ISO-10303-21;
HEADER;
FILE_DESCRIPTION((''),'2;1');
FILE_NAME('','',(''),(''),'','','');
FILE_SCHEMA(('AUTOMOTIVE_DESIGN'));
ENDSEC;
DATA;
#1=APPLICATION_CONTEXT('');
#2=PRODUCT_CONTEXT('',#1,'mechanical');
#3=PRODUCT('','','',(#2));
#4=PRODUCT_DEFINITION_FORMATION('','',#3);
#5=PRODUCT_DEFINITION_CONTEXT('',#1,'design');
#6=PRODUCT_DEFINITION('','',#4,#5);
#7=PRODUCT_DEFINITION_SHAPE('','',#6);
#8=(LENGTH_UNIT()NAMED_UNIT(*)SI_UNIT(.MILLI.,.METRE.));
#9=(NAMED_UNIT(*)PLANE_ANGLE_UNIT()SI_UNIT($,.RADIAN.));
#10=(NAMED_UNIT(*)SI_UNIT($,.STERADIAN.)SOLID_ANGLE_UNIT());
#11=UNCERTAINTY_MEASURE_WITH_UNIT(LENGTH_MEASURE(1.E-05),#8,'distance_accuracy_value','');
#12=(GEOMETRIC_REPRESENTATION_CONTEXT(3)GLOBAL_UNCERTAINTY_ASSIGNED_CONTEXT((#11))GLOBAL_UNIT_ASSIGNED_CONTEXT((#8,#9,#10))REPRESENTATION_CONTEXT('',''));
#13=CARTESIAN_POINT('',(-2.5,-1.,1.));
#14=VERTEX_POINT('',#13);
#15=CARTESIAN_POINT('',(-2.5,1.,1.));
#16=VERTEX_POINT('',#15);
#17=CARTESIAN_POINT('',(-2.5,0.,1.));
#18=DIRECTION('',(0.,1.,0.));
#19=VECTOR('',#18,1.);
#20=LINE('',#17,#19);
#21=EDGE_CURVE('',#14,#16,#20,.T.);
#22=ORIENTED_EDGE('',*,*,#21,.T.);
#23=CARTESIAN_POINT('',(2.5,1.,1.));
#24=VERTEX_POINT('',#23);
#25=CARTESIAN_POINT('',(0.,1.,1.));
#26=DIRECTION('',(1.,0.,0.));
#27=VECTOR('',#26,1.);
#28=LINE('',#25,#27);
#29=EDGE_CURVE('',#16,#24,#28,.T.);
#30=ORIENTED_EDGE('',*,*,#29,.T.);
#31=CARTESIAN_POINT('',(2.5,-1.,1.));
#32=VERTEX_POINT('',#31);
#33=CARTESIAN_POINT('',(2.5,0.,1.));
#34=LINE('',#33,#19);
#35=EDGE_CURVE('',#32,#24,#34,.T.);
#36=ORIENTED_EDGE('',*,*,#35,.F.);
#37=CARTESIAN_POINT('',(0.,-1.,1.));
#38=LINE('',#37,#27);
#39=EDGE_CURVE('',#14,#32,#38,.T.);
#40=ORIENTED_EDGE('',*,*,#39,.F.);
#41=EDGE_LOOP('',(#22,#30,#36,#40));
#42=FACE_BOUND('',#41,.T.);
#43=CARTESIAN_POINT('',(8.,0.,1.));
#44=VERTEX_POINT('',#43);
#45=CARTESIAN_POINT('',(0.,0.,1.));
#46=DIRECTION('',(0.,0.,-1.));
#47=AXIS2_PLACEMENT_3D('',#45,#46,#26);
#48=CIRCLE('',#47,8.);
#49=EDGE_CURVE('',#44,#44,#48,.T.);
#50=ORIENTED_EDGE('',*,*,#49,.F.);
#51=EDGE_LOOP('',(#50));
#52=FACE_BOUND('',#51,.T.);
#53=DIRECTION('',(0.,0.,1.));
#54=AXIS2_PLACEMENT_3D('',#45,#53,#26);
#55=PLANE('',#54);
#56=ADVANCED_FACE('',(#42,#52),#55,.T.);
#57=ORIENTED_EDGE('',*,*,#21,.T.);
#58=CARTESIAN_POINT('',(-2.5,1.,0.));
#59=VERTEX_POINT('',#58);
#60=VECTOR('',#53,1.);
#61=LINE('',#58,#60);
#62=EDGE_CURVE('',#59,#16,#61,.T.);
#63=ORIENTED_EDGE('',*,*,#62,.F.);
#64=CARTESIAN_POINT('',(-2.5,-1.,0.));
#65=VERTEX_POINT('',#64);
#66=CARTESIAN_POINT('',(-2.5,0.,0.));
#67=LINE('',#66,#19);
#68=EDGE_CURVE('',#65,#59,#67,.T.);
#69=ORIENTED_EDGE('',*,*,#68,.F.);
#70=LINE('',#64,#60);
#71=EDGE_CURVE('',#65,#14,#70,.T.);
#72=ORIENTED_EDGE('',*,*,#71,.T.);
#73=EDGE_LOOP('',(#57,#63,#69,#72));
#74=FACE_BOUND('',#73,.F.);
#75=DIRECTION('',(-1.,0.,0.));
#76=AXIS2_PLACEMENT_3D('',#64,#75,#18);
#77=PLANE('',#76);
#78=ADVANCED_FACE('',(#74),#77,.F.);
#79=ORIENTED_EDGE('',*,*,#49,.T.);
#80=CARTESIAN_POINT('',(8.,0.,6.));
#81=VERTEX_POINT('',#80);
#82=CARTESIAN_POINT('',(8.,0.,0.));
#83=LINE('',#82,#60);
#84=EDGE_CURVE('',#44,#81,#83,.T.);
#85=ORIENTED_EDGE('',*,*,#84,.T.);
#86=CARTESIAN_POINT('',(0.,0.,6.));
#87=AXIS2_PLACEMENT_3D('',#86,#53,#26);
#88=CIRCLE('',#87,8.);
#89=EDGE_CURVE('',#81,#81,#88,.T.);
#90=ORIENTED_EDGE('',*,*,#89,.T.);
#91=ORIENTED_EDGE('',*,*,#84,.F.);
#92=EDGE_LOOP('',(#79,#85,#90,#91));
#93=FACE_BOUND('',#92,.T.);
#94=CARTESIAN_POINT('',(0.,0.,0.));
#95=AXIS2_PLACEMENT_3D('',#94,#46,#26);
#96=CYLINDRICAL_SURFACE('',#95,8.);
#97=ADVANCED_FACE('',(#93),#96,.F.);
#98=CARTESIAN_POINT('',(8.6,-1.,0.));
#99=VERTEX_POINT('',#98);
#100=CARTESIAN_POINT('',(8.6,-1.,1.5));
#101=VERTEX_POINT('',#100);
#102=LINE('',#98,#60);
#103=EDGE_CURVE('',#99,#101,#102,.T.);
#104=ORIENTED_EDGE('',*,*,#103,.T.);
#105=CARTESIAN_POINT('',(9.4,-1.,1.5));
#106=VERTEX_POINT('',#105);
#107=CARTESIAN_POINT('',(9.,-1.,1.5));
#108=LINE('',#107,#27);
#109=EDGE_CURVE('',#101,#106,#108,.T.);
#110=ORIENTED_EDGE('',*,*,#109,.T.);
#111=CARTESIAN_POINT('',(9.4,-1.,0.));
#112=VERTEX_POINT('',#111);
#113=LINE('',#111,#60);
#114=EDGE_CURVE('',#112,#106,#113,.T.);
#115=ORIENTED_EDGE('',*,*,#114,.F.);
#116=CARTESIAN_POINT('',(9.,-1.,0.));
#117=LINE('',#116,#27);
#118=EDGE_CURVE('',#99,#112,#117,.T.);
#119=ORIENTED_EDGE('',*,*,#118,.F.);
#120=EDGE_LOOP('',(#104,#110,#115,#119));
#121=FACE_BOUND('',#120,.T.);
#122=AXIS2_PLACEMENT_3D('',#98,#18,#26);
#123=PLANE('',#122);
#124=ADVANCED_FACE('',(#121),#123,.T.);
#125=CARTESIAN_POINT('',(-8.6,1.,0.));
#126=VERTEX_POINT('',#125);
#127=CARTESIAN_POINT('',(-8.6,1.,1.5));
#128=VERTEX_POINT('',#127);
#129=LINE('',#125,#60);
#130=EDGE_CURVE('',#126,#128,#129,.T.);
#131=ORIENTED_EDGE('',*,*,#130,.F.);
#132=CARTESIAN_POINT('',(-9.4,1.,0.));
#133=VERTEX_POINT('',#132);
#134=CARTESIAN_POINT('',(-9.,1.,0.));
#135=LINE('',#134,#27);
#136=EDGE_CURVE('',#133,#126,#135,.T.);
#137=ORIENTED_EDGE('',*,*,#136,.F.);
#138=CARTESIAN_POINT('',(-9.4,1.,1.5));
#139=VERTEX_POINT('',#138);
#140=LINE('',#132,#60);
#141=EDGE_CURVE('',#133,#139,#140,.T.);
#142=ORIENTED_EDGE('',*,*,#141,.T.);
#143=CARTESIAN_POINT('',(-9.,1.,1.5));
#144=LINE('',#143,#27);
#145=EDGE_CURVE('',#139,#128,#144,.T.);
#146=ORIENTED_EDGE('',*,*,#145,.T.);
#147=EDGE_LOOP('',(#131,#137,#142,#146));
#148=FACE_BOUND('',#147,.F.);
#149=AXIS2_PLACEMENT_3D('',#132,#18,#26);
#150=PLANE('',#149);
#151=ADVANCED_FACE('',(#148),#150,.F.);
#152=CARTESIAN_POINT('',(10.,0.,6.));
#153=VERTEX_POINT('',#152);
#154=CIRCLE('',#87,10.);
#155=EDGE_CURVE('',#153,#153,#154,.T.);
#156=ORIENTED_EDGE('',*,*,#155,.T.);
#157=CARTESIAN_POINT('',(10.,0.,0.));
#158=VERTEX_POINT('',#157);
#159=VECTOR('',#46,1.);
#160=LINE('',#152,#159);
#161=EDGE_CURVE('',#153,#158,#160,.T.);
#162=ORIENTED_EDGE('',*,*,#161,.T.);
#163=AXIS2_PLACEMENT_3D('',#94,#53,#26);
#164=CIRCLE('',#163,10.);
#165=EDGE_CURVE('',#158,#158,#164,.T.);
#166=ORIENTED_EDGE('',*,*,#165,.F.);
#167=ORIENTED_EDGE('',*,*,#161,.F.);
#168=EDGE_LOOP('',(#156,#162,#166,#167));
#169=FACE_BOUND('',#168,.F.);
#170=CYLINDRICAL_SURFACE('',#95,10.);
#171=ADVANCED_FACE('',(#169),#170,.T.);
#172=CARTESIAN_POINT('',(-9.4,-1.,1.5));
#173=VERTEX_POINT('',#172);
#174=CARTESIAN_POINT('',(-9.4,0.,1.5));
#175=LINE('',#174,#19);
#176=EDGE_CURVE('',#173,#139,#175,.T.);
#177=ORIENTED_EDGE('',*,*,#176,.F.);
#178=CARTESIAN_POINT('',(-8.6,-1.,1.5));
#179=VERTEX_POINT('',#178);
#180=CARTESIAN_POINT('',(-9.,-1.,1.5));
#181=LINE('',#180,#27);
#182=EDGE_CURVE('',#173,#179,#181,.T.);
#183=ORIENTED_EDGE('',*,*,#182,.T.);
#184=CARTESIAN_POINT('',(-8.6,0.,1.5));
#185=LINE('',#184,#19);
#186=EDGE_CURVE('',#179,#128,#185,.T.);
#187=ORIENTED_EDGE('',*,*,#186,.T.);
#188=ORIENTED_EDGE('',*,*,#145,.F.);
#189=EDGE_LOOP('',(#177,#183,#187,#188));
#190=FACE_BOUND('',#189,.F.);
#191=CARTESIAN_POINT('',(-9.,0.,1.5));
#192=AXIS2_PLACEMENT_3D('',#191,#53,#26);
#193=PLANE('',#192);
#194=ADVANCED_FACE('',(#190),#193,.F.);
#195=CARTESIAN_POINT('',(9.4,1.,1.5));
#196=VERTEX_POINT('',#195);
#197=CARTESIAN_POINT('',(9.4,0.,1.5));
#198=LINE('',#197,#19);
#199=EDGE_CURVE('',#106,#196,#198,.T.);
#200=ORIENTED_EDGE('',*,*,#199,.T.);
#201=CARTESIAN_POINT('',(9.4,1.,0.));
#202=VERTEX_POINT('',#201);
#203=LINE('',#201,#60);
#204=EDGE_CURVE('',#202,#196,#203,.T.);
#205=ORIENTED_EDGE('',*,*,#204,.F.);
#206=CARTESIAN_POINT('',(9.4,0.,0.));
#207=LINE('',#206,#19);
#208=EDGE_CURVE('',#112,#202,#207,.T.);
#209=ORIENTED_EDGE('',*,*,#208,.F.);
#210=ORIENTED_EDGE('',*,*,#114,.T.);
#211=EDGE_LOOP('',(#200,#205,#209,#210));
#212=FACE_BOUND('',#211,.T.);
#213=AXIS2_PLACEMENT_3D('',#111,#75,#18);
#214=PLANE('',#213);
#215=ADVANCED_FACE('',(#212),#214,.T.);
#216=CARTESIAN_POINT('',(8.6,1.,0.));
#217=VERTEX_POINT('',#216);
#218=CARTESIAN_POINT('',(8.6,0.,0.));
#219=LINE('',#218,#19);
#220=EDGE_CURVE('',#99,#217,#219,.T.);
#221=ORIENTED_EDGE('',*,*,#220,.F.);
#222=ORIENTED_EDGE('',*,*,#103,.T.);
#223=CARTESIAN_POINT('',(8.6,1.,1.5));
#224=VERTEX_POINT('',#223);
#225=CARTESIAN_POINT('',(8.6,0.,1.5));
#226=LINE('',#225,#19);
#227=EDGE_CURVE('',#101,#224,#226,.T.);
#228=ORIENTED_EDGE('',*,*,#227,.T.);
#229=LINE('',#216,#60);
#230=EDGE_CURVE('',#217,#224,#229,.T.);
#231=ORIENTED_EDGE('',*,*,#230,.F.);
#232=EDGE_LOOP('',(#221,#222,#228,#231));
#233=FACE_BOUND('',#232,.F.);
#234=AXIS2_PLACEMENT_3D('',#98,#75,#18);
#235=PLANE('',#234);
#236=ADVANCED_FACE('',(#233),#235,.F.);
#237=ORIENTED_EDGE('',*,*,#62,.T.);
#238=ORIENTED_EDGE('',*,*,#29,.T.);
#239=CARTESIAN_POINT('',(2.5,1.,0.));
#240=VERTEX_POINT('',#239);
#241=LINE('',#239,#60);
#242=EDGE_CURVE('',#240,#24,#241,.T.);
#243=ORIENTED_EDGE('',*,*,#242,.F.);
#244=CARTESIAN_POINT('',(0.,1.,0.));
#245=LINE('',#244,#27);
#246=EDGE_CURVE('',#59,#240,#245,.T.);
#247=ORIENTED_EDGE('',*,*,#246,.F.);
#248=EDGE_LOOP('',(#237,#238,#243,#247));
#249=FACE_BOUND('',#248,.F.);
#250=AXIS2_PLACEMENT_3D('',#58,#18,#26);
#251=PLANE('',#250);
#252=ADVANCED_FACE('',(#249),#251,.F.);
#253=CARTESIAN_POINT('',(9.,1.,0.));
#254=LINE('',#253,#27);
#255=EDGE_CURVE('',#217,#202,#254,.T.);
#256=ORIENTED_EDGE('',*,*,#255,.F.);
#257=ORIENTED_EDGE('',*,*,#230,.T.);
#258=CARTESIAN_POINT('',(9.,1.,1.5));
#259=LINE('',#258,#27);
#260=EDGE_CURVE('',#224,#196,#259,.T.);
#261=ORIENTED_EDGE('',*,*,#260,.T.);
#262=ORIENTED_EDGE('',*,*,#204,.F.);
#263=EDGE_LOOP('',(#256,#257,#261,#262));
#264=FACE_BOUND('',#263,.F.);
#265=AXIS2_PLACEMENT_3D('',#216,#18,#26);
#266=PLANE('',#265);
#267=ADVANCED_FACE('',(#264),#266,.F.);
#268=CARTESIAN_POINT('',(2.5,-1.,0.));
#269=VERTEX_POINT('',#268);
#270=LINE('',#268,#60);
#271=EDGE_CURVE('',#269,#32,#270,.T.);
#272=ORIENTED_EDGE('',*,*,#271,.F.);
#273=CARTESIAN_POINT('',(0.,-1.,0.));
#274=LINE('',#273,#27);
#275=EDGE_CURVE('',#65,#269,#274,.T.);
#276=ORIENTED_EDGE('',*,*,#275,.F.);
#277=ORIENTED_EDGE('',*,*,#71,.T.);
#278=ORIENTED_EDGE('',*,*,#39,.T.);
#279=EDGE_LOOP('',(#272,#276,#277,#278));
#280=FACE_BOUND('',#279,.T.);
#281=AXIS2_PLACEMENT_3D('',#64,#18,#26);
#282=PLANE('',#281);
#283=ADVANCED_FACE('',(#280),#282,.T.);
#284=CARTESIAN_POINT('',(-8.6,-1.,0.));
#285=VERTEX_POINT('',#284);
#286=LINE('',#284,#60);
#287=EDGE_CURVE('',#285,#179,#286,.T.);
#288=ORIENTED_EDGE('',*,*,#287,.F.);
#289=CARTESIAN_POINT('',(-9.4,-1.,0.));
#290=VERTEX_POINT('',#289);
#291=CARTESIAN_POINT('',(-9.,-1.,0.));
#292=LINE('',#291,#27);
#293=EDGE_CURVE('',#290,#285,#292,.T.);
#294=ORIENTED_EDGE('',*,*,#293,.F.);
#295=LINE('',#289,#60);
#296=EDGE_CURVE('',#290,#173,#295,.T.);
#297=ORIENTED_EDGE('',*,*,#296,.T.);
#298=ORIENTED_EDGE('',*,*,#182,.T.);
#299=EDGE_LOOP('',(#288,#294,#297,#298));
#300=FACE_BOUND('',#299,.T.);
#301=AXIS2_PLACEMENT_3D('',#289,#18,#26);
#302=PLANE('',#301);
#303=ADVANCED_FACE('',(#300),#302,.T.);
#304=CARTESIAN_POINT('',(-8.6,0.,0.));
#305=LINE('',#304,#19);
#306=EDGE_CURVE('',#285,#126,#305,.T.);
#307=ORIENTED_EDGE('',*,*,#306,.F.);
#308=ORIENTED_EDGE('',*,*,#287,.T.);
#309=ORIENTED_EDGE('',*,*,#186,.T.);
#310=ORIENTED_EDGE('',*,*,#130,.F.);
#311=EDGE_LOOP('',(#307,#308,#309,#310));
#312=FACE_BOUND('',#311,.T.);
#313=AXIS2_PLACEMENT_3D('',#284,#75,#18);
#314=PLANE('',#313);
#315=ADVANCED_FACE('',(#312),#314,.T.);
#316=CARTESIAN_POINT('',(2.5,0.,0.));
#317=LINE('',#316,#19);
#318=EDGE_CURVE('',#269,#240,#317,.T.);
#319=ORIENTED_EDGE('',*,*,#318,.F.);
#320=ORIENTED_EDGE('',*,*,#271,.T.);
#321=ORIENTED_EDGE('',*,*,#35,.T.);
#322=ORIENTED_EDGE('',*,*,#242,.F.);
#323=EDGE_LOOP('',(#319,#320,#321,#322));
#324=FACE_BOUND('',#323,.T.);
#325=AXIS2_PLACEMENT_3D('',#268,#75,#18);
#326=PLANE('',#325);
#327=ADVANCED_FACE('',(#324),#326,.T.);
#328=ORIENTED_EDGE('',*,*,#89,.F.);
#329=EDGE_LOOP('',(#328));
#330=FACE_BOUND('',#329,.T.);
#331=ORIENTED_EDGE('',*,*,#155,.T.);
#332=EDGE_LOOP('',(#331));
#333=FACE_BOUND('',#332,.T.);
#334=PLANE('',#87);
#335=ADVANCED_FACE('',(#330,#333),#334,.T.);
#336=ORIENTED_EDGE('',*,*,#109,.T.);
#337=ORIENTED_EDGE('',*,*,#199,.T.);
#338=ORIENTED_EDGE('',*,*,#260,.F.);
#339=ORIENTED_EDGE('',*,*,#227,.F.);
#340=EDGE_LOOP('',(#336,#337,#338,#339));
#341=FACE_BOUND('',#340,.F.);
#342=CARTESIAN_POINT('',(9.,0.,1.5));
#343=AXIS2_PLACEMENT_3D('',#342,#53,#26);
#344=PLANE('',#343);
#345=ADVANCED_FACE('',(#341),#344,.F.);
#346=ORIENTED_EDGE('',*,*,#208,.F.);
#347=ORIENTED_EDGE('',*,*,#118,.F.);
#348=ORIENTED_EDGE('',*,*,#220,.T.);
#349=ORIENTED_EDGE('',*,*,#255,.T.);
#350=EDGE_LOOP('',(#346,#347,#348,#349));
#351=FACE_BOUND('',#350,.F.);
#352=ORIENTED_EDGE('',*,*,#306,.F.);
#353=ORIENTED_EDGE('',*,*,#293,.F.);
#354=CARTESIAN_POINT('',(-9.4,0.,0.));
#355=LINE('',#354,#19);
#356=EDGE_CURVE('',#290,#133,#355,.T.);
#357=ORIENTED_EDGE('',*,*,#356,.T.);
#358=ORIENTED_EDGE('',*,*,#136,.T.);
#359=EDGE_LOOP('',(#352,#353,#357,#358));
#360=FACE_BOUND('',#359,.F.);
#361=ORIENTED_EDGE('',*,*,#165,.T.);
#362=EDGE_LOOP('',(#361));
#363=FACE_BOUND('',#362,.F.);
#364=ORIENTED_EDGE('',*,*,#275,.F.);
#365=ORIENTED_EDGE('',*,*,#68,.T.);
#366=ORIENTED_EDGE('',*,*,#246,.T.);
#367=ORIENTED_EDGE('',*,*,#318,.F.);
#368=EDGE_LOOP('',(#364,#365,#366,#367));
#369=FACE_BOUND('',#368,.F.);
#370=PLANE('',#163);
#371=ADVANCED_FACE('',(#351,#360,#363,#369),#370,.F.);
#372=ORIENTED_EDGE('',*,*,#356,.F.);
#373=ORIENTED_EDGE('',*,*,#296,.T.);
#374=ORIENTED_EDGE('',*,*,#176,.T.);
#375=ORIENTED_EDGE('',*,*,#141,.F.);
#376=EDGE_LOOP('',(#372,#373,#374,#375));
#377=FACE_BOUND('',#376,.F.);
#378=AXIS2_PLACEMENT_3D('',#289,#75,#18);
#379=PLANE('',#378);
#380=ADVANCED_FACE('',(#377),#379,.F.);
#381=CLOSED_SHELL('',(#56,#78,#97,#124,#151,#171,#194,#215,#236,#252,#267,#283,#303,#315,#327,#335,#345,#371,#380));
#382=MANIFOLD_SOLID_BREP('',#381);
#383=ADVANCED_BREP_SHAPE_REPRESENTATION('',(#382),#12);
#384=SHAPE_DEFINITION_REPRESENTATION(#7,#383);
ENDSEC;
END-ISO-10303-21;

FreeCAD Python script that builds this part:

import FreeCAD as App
import Part
import Sketcher
from FreeCAD import Vector
Q = App.Units.Quantity


def add_polygon(sketch, points):
    """Adds a closed chain of lines whose ends are joined by coincident constraints."""
    first, n = sketch.GeometryCount, len(points)
    for a, b in zip(points, points[1:] + points[:1]):
        sketch.addGeometry(Part.LineSegment(App.Vector(*a, 0), App.Vector(*b, 0)), False)
    for i in range(n):
        sketch.addConstraint(Sketcher.Constraint("Coincident", first + i, 2, first + (i + 1) % n, 1))

doc = App.newDocument("Part")
body = doc.addObject("PartDesign::Body", "Body")

# Sketch on XY plane
sketch1 = doc.addObject("Sketcher::SketchObject", "Sketch")
body.addObject(sketch1)
sketch1.AttachmentSupport = (doc.XY_Plane, [""])
sketch1.MapMode = "FlatFace"
sketch1.addGeometry(Part.Circle(Vector(0, 0, 0), Vector(0, 0, 1), 10), False)
sketch1.addGeometry(Part.Circle(Vector(0, 0, 0), Vector(0, 0, 1), 8), False)
sketch1.addConstraint(Sketcher.Constraint("Coincident", 0, 3, -1, 1))
sketch1.addConstraint(Sketcher.Constraint("Coincident", 1, 3, -1, 1))
sketch1.addConstraint(Sketcher.Constraint("Diameter", 0, Q("20 mm")))
sketch1.addConstraint(Sketcher.Constraint("Diameter", 1, Q("16 mm")))
pad1 = doc.addObject("PartDesign::Pad", "Pad")
body.addObject(pad1)
pad1.Profile = sketch1
pad1.Length = 6

# Sketch on XY plane
sketch2 = doc.addObject("Sketcher::SketchObject", "Sketch001")
body.addObject(sketch2)
sketch2.AttachmentSupport = (doc.XY_Plane, [""])
sketch2.MapMode = "FlatFace"
sketch2.addGeometry(Part.Circle(Vector(0, 0, 0), Vector(0, 0, 1), 10), False)  # 0
add_polygon(sketch2, [(-8.6, -1), (-9.4, -1), (-9.4, 1), (-8.6, 1)])  # lines 1-4
add_polygon(sketch2, [(2.5, -1), (-2.5, -1), (-2.5, 1), (2.5, 1)])  # lines 5-8
add_polygon(sketch2, [(9.4, -1), (8.6, -1), (8.6, 1), (9.4, 1)])  # lines 9-12
sketch2.addConstraint(Sketcher.Constraint("Horizontal", 1))
sketch2.addConstraint(Sketcher.Constraint("Vertical", 2))
sketch2.addConstraint(Sketcher.Constraint("Horizontal", 3))
sketch2.addConstraint(Sketcher.Constraint("Vertical", 4))
sketch2.addConstraint(Sketcher.Constraint("Horizontal", 5))
sketch2.addConstraint(Sketcher.Constraint("Vertical", 6))
sketch2.addConstraint(Sketcher.Constraint("Horizontal", 7))
sketch2.addConstraint(Sketcher.Constraint("Vertical", 8))
sketch2.addConstraint(Sketcher.Constraint("Horizontal", 9))
sketch2.addConstraint(Sketcher.Constraint("Vertical", 10))
sketch2.addConstraint(Sketcher.Constraint("Horizontal", 11))
sketch2.addConstraint(Sketcher.Constraint("Vertical", 12))
sketch2.addConstraint(Sketcher.Constraint("Coincident", 0, 3, -1, 1))
sketch2.addConstraint(Sketcher.Constraint("Symmetric", 5, 2, 7, 2, -1, 1))
sketch2.addConstraint(Sketcher.Constraint("Symmetric", 3, 2, 9, 2, -1, 1))
sketch2.addConstraint(Sketcher.Constraint("Symmetric", 1, 2, 11, 2, -1, 1))
sketch2.addConstraint(Sketcher.Constraint("Horizontal", 4, 2, 5, 2))
sketch2.addConstraint(Sketcher.Constraint("Horizontal", 3, 2, 6, 2))
sketch2.addConstraint(Sketcher.Constraint("Diameter", 0, Q("20 mm")))
sketch2.addConstraint(Sketcher.Constraint("DistanceX", 5, 2, 5, 1, Q("5 mm")))
sketch2.addConstraint(Sketcher.Constraint("DistanceY", 2, 1, 2, 2, Q("2 mm")))
sketch2.addConstraint(Sketcher.Constraint("DistanceX", 1, 2, 1, 1, Q("0.8 mm")))
sketch2.addConstraint(Sketcher.Constraint("DistanceX", 1, 2, -1, 1, Q("9.4 mm")))
pad2 = doc.addObject("PartDesign::Pad", "Pad001")
body.addObject(pad2)
pad2.Profile = sketch2
pad2.Length = 1

# Sketch on XY plane
sketch3 = doc.addObject("Sketcher::SketchObject", "Sketch002")
body.addObject(sketch3)
sketch3.AttachmentSupport = (doc.XY_Plane, [""])
sketch3.MapMode = "FlatFace"
add_polygon(sketch3, [(8.6, 1), (8.6, -1), (9.4, -1), (9.4, 1)])  # lines 0-3
add_polygon(sketch3, [(-9.4, 1), (-9.4, -1), (-8.6, -1), (-8.6, 1)])  # lines 4-7
sketch3.addConstraint(Sketcher.Constraint("Vertical", 0))
sketch3.addConstraint(Sketcher.Constraint("Horizontal", 1))
sketch3.addConstraint(Sketcher.Constraint("Vertical", 2))
sketch3.addConstraint(Sketcher.Constraint("Horizontal", 3))
sketch3.addConstraint(Sketcher.Constraint("Vertical", 4))
sketch3.addConstraint(Sketcher.Constraint("Horizontal", 5))
sketch3.addConstraint(Sketcher.Constraint("Vertical", 6))
sketch3.addConstraint(Sketcher.Constraint("Horizontal", 7))
sketch3.addConstraint(Sketcher.Constraint("Symmetric", 2, 2, 4, 2, -1, 1))
sketch3.addConstraint(Sketcher.Constraint("Symmetric", 0, 2, 6, 2, -1, 1))
sketch3.addConstraint(Sketcher.Constraint("Horizontal", 1, 2, 4, 2))
sketch3.addConstraint(Sketcher.Constraint("DistanceY", 0, 2, 0, 1, Q("2 mm")))
sketch3.addConstraint(Sketcher.Constraint("DistanceX", 1, 1, 1, 2, Q("0.8 mm")))
sketch3.addConstraint(Sketcher.Constraint("DistanceX", 4, 2, 0, 2, Q("18 mm")))
pocket1 = doc.addObject("PartDesign::Pocket", "Pocket")
body.addObject(pocket1)
pocket1.Profile = sketch3
pocket1.Length = 1.5
pocket1.Reversed = True

doc.recompute()
